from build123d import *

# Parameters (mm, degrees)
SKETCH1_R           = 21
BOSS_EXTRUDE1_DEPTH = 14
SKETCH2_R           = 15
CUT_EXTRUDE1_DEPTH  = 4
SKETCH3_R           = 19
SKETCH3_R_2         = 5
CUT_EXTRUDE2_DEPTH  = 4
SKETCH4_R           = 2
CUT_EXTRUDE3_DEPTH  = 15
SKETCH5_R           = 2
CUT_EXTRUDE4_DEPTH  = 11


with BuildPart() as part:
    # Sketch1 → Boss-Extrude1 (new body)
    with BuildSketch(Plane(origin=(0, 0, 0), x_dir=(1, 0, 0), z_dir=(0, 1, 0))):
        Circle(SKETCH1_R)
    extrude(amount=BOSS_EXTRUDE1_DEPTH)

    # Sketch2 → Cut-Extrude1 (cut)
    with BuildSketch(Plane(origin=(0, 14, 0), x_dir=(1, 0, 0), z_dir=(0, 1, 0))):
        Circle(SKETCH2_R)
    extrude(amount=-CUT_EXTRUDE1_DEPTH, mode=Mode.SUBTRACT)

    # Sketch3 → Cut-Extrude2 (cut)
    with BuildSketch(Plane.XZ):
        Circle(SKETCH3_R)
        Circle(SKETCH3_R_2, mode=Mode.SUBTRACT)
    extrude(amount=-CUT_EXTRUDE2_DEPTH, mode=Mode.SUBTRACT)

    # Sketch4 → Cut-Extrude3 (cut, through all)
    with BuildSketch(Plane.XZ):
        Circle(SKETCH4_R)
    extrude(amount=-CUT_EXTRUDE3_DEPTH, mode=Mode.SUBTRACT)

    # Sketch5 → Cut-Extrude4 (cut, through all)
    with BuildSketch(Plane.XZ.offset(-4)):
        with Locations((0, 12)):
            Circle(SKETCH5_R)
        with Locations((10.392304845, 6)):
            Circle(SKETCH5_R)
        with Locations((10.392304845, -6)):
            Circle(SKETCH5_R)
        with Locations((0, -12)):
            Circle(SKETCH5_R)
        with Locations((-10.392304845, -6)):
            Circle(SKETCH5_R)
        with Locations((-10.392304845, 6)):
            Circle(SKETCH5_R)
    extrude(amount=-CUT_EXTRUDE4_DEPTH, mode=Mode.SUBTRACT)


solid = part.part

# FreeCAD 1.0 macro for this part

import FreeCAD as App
import Part
import Sketcher
from FreeCAD import Vector
Q = App.Units.Quantity

doc = App.newDocument("Part")
body = doc.addObject("PartDesign::Body", "Body")

# Sketch on XZ plane
sketch1 = body.newObject("Sketcher::SketchObject", "Sketch")
sketch1.AttachmentSupport = (doc.getObject("XZ_Plane"), [""])
sketch1.MapMode = "FlatFace"
sketch1.addGeometry(Part.Circle(Vector(0, 0, 0), Vector(0, 0, 1), 21), False)
sketch1.addConstraint([
    Sketcher.Constraint("Coincident", 0, 3, -1, 1),
    Sketcher.Constraint("Diameter", 0, Q("42 mm")),
])
pad1 = body.newObject("PartDesign::Pad", "Pad")
pad1.Profile = sketch1
pad1.Length = 14
pad1.Reversed = True

# Sketch on XZ plane
sketch2 = body.newObject("Sketcher::SketchObject", "Sketch001")
sketch2.AttachmentSupport = (doc.getObject("XZ_Plane"), [""])
sketch2.MapMode = "FlatFace"
sketch2.AttachmentOffset = App.Placement(Vector(0, 0, -14), App.Rotation())
sketch2.addGeometry(Part.Circle(Vector(0, 0, 0), Vector(0, 0, 1), 15), False)
sketch2.addConstraint([
    Sketcher.Constraint("Coincident", 0, 3, -1, 1),
    Sketcher.Constraint("Diameter", 0, Q("30 mm")),
])
pocket1 = body.newObject("PartDesign::Pocket", "Pocket")
pocket1.Profile = sketch2
pocket1.Length = 4
pocket1.Reversed = True

# Sketch on XZ plane
sketch3 = body.newObject("Sketcher::SketchObject", "Sketch002")
sketch3.AttachmentSupport = (doc.getObject("XZ_Plane"), [""])
sketch3.MapMode = "FlatFace"
sketch3.addGeometry([
    Part.Circle(Vector(0, 0, 0), Vector(0, 0, 1), 19),
    Part.Circle(Vector(0, 0, 0), Vector(0, 0, 1), 5),
], False)
sketch3.addConstraint([
    Sketcher.Constraint("Coincident", 0, 3, -1, 1),
    Sketcher.Constraint("Coincident", 1, 3, -1, 1),
    Sketcher.Constraint("Diameter", 0, Q("38 mm")),
    Sketcher.Constraint("Diameter", 1, Q("10 mm")),
])
pocket2 = body.newObject("PartDesign::Pocket", "Pocket001")
pocket2.Profile = sketch3
pocket2.Length = 4

# Sketch on XZ plane
sketch4 = body.newObject("Sketcher::SketchObject", "Sketch003")
sketch4.AttachmentSupport = (doc.getObject("XZ_Plane"), [""])
sketch4.MapMode = "FlatFace"
sketch4.addGeometry(Part.Circle(Vector(0, 0, 0), Vector(0, 0, 1), 2), False)
sketch4.addConstraint([
    Sketcher.Constraint("Coincident", 0, 3, -1, 1),
    Sketcher.Constraint("Diameter", 0, Q("4 mm")),
])
pocket3 = body.newObject("PartDesign::Pocket", "Pocket002")
pocket3.Profile = sketch4
pocket3.Type = "ThroughAll"

# Sketch on XZ plane
sketch5 = body.newObject("Sketcher::SketchObject", "Sketch004")
sketch5.AttachmentSupport = (doc.getObject("XZ_Plane"), [""])
sketch5.MapMode = "FlatFace"
sketch5.AttachmentOffset = App.Placement(Vector(0, 0, -4), App.Rotation())
sketch5.addGeometry([
    Part.Circle(Vector(0, 12, 0), Vector(0, 0, 1), 2),  # 0
    Part.Circle(Vector(10.392305, 6, 0), Vector(0, 0, 1), 2),  # 1
    Part.Circle(Vector(10.392305, -6, 0), Vector(0, 0, 1), 2),  # 2
    Part.Circle(Vector(0, -12, 0), Vector(0, 0, 1), 2),  # 3
    Part.Circle(Vector(-10.392305, -6, 0), Vector(0, 0, 1), 2),  # 4
    Part.Circle(Vector(-10.392305, 6, 0), Vector(0, 0, 1), 2),  # 5
], False)
sketch5.addConstraint([
    Sketcher.Constraint("Equal", 0, 1),
    Sketcher.Constraint("Equal", 1, 2),
    Sketcher.Constraint("Equal", 2, 3),
    Sketcher.Constraint("Equal", 3, 4),
    Sketcher.Constraint("Equal", 4, 5),
    Sketcher.Constraint("Symmetric", 0, 3, 3, 3, -1, 1),
    Sketcher.Constraint("Symmetric", 1, 3, 4, 3, -1, 1),
    Sketcher.Constraint("Symmetric", 2, 3, 5, 3, -1, 1),
    Sketcher.Constraint("Symmetric", 2, 3, 4, 3, -2),
    Sketcher.Constraint("PointOnObject", 0, 3, -2),
    Sketcher.Constraint("Diameter", 0, Q("4 mm")),
    Sketcher.Constraint("DistanceY", -1, 1, 0, 3, Q("12 mm")),
    Sketcher.Constraint("DistanceY", -1, 1, 1, 3, Q("6 mm")),
    Sketcher.Constraint("DistanceX", 4, 3, 2, 3, Q("20.78461 mm")),
])
pocket4 = body.newObject("PartDesign::Pocket", "Pocket003")
pocket4.Profile = sketch5
pocket4.Type = "ThroughAll"

doc.recompute()
